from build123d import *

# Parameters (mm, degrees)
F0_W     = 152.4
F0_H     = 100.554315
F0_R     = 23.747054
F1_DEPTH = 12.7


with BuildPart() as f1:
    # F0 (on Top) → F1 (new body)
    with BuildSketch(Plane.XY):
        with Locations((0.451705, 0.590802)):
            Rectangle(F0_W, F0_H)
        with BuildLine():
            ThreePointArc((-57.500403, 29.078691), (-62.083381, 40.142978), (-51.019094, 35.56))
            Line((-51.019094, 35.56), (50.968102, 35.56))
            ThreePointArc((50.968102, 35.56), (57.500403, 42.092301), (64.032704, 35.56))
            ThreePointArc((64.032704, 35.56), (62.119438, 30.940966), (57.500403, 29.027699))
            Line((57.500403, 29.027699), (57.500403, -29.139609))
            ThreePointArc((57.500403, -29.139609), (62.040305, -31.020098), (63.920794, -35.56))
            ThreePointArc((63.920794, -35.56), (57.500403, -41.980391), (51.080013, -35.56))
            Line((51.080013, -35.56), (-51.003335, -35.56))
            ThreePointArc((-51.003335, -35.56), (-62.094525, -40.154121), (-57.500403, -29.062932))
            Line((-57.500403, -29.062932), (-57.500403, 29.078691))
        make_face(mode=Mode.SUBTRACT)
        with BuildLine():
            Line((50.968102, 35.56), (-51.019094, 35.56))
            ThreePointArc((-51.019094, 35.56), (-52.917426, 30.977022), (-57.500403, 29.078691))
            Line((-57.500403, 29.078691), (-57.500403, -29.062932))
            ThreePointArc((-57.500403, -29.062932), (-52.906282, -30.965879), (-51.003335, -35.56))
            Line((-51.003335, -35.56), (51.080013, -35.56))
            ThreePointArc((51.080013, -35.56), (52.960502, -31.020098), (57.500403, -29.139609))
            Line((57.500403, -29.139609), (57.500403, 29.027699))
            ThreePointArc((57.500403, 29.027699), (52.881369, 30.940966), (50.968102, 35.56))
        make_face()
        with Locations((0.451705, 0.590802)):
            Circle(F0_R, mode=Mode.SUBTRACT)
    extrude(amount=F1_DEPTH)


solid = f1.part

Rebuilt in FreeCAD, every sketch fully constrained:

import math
import FreeCAD as App
import Part
import Sketcher
from FreeCAD import Vector
Q = App.Units.Quantity


def add_polygon(sketch, points):
    """Adds a closed chain of lines whose ends are joined by coincident constraints."""
    first, n = sketch.GeometryCount, len(points)
    for a, b in zip(points, points[1:] + points[:1]):
        sketch.addGeometry(Part.LineSegment(App.Vector(*a, 0), App.Vector(*b, 0)), False)
    for i in range(n):
        sketch.addConstraint(Sketcher.Constraint("Coincident", first + i, 2, first + (i + 1) % n, 1))

doc = App.newDocument("Part")
body = doc.addObject("PartDesign::Body", "Body")

# Sketch on XY plane
sketch1 = body.newObject("Sketcher::SketchObject", "Sketch")
sketch1.AttachmentSupport = (doc.getObject("XY_Plane"), [""])
sketch1.MapMode = "FlatFace"
add_polygon(sketch1, [(-76, 51), (-76, -50), (77, -50), (77, 51)])  # lines 0-3
sketch1.addGeometry(Part.ArcOfCircle(Part.Circle(Vector(-58, -36, 0), Vector(0, 0, 1), 6), math.radians(90), math.radians(360)), False)  # 4
sketch1.addGeometry(Part.ArcOfCircle(Part.Circle(Vector(-58, -36, 0), Vector(0, 0, 1), 6), math.radians(0), math.radians(90)), False)  # 5
sketch1.addGeometry(Part.ArcOfCircle(Part.Circle(Vector(58, -36, 0), Vector(0, 0, 1), 6), math.radians(180), math.radians(360)), False)  # 6
sketch1.addGeometry(Part.ArcOfCircle(Part.Circle(Vector(58, -36, 0), Vector(0, 0, 1), 6), math.radians(90), math.radians(180)), False)  # 7
sketch1.addGeometry(Part.ArcOfCircle(Part.Circle(Vector(58, -36, 0), Vector(0, 0, 1), 6), math.radians(0), math.radians(90)), False)  # 8
sketch1.addGeometry(Part.ArcOfCircle(Part.Circle(Vector(-58, 36, 0), Vector(0, 0, 1), 6), math.radians(0), math.radians(270)), False)  # 9
sketch1.addGeometry(Part.ArcOfCircle(Part.Circle(Vector(-58, 36, 0), Vector(0, 0, 1), 6), math.radians(-90), math.radians(0)), False)  # 10
sketch1.addGeometry(Part.Circle(Vector(0, 1, 0), Vector(0, 0, 1), 24), False)  # 11
sketch1.addGeometry(Part.ArcOfCircle(Part.Circle(Vector(58, 36, 0), Vector(0, 0, 1), 7), math.radians(-90), math.radians(0)), False)  # 12
sketch1.addGeometry(Part.ArcOfCircle(Part.Circle(Vector(58, 36, 0), Vector(0, 0, 1), 7), math.radians(-180), math.radians(-90)), False)  # 13
sketch1.addGeometry(Part.ArcOfCircle(Part.Circle(Vector(58, 36, 0), Vector(0, 0, 1), 7), math.radians(0), math.radians(180)), False)  # 14
sketch1.addConstraint([
    Sketcher.Constraint("Tangent", 4, 1, 5, 2),
    Sketcher.Constraint("Coincident", 5, 1, 4, 2),
    Sketcher.Constraint("Tangent", 6, 1, 7, 2),
    Sketcher.Constraint("Tangent", 7, 1, 8, 2),
    Sketcher.Constraint("Tangent", 8, 1, 6, 2),
    Sketcher.Constraint("Tangent", 9, 1, 10, 2),
    Sketcher.Constraint("Coincident", 10, 1, 9, 2),
    Sketcher.Constraint("Tangent", 12, 1, 13, 2),
    Sketcher.Constraint("Tangent", 13, 1, 14, 2),
    Sketcher.Constraint("Tangent", 14, 1, 12, 2),
    Sketcher.Constraint("Vertical", 0),
    Sketcher.Constraint("Horizontal", 1),
    Sketcher.Constraint("Vertical", 2),
    Sketcher.Constraint("Horizontal", 3),
    Sketcher.Constraint("Symmetric", 6, 3, 9, 3, -1, 1),
    Sketcher.Constraint("Symmetric", 4, 3, 12, 3, -1, 1),
    Sketcher.Constraint("Symmetric", 4, 3, 6, 3, -2),
    Sketcher.Constraint("Horizontal", 8, 3, 5, 1),
    Sketcher.Constraint("Horizontal", 5, 1, 6, 1),
    Sketcher.Constraint("Horizontal", 6, 1, 8, 1),
    Sketcher.Constraint("Horizontal", 14, 3, 9, 1),
    Sketcher.Constraint("Horizontal", 9, 1, 13, 1),
    Sketcher.Constraint("Horizontal", 13, 1, 14, 1),
    Sketcher.Constraint("Vertical", 10, 3, 4, 1),
    Sketcher.Constraint("Vertical", 14, 3, 7, 1),
    Sketcher.Constraint("Vertical", 4, 1, 10, 1),
    Sketcher.Constraint("Vertical", 7, 1, 12, 1),
    Sketcher.Constraint("DistanceX", 1, 1, 1, 2, Q("6 in")),
    Sketcher.Constraint("DistanceX", 0, 2, 11, 3, Q("3 in")),
    Sketcher.Constraint("DistanceY", 4, 3, -1, 1, Q("1.4 in")),
    Sketcher.Constraint("Radius", 12, 6.5323),
    Sketcher.Constraint("Radius", 4, 6.497068),
    Sketcher.Constraint("Radius", 6, 6.42039),
    Sketcher.Constraint("Radius", 9, 6.481309),
    Sketcher.Constraint("Diameter", 11, 47.494108),
    Sketcher.Constraint("DistanceX", 11, 3, 6, 3, 57.048699),
    Sketcher.Constraint("DistanceY", 11, 3, 10, 3, 34.969198),
    Sketcher.Constraint("DistanceX", 3, 2, 9, 1, 24.729201),
    Sketcher.Constraint("DistanceY", 0, 2, 0, 1, 100.554315),
    Sketcher.Constraint("DistanceY", -1, 1, 2, 2, 50.867959),
])
pad1 = body.newObject("PartDesign::Pad", "Pad")
pad1.Profile = sketch1
pad1.Length = Q("0.5 in")

doc.recompute()
